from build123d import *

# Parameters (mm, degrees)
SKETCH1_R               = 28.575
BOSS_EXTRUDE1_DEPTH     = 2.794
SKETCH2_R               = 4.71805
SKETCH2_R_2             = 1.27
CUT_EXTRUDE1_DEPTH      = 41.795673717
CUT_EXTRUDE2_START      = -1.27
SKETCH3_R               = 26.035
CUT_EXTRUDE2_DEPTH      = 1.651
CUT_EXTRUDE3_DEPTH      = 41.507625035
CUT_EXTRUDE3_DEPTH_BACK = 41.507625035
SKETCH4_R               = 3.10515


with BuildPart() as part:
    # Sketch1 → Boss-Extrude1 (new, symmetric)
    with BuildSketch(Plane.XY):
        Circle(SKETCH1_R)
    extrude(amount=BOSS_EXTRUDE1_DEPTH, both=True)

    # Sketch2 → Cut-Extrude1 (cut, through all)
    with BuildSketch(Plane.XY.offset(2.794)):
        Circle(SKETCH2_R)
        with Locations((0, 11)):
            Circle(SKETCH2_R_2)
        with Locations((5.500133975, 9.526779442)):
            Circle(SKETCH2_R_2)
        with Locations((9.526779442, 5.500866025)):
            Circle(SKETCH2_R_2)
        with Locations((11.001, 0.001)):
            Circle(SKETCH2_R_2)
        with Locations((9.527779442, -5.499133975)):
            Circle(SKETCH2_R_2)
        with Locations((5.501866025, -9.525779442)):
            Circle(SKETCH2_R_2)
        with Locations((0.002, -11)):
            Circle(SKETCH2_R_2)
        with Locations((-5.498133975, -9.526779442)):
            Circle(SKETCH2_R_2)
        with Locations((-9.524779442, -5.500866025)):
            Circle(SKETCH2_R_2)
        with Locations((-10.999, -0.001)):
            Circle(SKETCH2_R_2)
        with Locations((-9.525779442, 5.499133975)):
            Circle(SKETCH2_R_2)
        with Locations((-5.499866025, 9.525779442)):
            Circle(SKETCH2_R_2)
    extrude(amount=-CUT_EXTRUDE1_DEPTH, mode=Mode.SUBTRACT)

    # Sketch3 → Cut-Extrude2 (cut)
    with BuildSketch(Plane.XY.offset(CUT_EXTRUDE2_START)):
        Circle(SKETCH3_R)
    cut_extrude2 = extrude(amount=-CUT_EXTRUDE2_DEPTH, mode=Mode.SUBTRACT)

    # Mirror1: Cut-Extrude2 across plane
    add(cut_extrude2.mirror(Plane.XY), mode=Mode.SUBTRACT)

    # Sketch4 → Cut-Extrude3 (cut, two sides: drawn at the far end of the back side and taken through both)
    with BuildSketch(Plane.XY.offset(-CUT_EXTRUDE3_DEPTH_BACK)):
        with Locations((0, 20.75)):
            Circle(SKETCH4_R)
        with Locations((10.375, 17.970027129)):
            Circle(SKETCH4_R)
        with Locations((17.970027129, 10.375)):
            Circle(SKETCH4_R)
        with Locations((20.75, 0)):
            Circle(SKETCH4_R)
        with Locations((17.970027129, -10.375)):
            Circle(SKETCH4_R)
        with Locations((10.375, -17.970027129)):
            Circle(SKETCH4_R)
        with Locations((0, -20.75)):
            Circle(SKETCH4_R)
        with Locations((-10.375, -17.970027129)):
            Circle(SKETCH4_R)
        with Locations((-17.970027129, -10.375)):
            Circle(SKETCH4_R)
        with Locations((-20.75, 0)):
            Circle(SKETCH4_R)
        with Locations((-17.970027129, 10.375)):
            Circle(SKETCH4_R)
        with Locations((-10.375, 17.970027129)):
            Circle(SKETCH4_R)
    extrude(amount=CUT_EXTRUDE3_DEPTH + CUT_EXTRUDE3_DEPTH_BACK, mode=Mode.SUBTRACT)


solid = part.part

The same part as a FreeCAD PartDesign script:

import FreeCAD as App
import Part
import Sketcher

V = App.Vector
Q = App.Units.Quantity

doc = App.newDocument("Part")
body = doc.addObject("PartDesign::Body", "Body")

# Sketch on XY plane
sketch1 = doc.addObject("Sketcher::SketchObject", "Sketch")
body.addObject(sketch1)
sketch1.AttachmentSupport = (doc.XY_Plane, [""])
sketch1.MapMode = "FlatFace"
sketch1.addGeometry(Part.Circle(V(0, 0, 0), V(0, 0, 1), 29), False)
sketch1.addConstraint(Sketcher.Constraint("Coincident", 0, 3, -1, 1))
sketch1.addConstraint(Sketcher.Constraint("Diameter", 0, Q("2.25 in")))
pad1 = doc.addObject("PartDesign::Pad", "Pad")
body.addObject(pad1)
pad1.Profile = sketch1
pad1.Length = Q("0.22 in")
pad1.Midplane = True

# Sketch on XY plane
sketch2 = doc.addObject("Sketcher::SketchObject", "Sketch001")
body.addObject(sketch2)
sketch2.AttachmentSupport = (doc.XY_Plane, [""])
sketch2.MapMode = "FlatFace"
sketch2.AttachmentOffset = App.Placement(V(0, 0, 0.11 * 25.4), App.Rotation())
sketch2.addGeometry(Part.Circle(V(0, 0, 0), V(0, 0, 1), 4.7), False)
sketch2.addGeometry(Part.Circle(V(0, 11, 0), V(0, 0, 1), 1.3), False)
sketch2.addGeometry(Part.Circle(V(5.5, 9.5, 0), V(0, 0, 1), 1.3), False)
sketch2.addGeometry(Part.Circle(V(9.5, 5.5, 0), V(0, 0, 1), 1.3), False)
sketch2.addGeometry(Part.Circle(V(11, 0, 0), V(0, 0, 1), 1.3), False)
sketch2.addGeometry(Part.Circle(V(9.5, -5.5, 0), V(0, 0, 1), 1.3), False)
sketch2.addGeometry(Part.Circle(V(5.5, -9.5, 0), V(0, 0, 1), 1.3), False)
sketch2.addGeometry(Part.Circle(V(0, -11, 0), V(0, 0, 1), 1.3), False)
sketch2.addGeometry(Part.Circle(V(-5.5, -9.5, 0), V(0, 0, 1), 1.3), False)
sketch2.addGeometry(Part.Circle(V(-9.5, -5.5, 0), V(0, 0, 1), 1.3), False)
sketch2.addGeometry(Part.Circle(V(-11, 0, 0), V(0, 0, 1), 1.3), False)
sketch2.addGeometry(Part.Circle(V(-9.5, 5.5, 0), V(0, 0, 1), 1.3), False)
sketch2.addGeometry(Part.Circle(V(-5.5, 9.5, 0), V(0, 0, 1), 1.3), False)
sketch2.addConstraint(Sketcher.Constraint("Coincident", 0, 3, -1, 1))
sketch2.addConstraint(Sketcher.Constraint("Equal", 1, 2))
sketch2.addConstraint(Sketcher.Constraint("Equal", 2, 3))
sketch2.addConstraint(Sketcher.Constraint("Equal", 3, 4))
sketch2.addConstraint(Sketcher.Constraint("Equal", 4, 5))
sketch2.addConstraint(Sketcher.Constraint("Equal", 5, 6))
sketch2.addConstraint(Sketcher.Constraint("Equal", 6, 7))
sketch2.addConstraint(Sketcher.Constraint("Equal", 7, 8))
sketch2.addConstraint(Sketcher.Constraint("Equal", 8, 9))
sketch2.addConstraint(Sketcher.Constraint("Equal", 9, 10))
sketch2.addConstraint(Sketcher.Constraint("Equal", 10, 11))
sketch2.addConstraint(Sketcher.Constraint("Equal", 11, 12))
sketch2.addConstraint(Sketcher.Constraint("PointOnObject", 1, 3, -2))
sketch2.addConstraint(Sketcher.Constraint("Diameter", 1, Q("0.1 in")))
sketch2.addConstraint(Sketcher.Constraint("Diameter", 0, Q("0.3715 in")))
sketch2.addConstraint(Sketcher.Constraint("DistanceY", -1, 1, 1, 3, 11.0))
sketch2.addConstraint(Sketcher.Constraint("DistanceX", -1, 1, 4, 3, 11.001))
sketch2.addConstraint(Sketcher.Constraint("DistanceY", -1, 1, 4, 3, 0.001))
sketch2.addConstraint(Sketcher.Constraint("DistanceX", -1, 1, 7, 3, 0.002))
sketch2.addConstraint(Sketcher.Constraint("DistanceY", 7, 3, -1, 1, 11.0))
sketch2.addConstraint(Sketcher.Constraint("DistanceX", 10, 3, -1, 1, 10.999))
sketch2.addConstraint(Sketcher.Constraint("DistanceY", 10, 3, -1, 1, 0.001))
sketch2.addConstraint(Sketcher.Constraint("DistanceX", 3, 3, 5, 3, 0.001))
sketch2.addConstraint(Sketcher.Constraint("DistanceY", 5, 3, 3, 3, 11.0))
sketch2.addConstraint(Sketcher.Constraint("DistanceX", 8, 3, 6, 3, 11.0))
sketch2.addConstraint(Sketcher.Constraint("DistanceY", 8, 3, 6, 3, 0.001))
sketch2.addConstraint(Sketcher.Constraint("DistanceX", 11, 3, 9, 3, 0.001))
sketch2.addConstraint(Sketcher.Constraint("DistanceY", 9, 3, 11, 3, 11.0))
sketch2.addConstraint(Sketcher.Constraint("DistanceX", 12, 3, 2, 3, 11.0))
sketch2.addConstraint(Sketcher.Constraint("DistanceY", 12, 3, 2, 3, 0.001))
sketch2.addConstraint(Sketcher.Constraint("DistanceY", -1, 1, 2, 3, 9.526779))
sketch2.addConstraint(Sketcher.Constraint("DistanceX", -1, 1, 3, 3, 9.526779))
sketch2.addConstraint(Sketcher.Constraint("DistanceY", 6, 3, -1, 1, 9.525779))
sketch2.addConstraint(Sketcher.Constraint("DistanceX", 9, 3, -1, 1, 9.524779))
sketch2.addConstraint(Sketcher.Constraint("DistanceX", -1, 1, 2, 3, 5.500134))
sketch2.addConstraint(Sketcher.Constraint("DistanceY", -1, 1, 3, 3, 5.500866))
sketch2.addConstraint(Sketcher.Constraint("DistanceX", -1, 1, 6, 3, 5.501866))
sketch2.addConstraint(Sketcher.Constraint("DistanceY", 9, 3, -1, 1, 5.500866))
pocket1 = doc.addObject("PartDesign::Pocket", "Pocket")
body.addObject(pocket1)
pocket1.Profile = sketch2
pocket1.Type = "ThroughAll"

# Sketch on XY plane
sketch3 = doc.addObject("Sketcher::SketchObject", "Sketch002")
body.addObject(sketch3)
sketch3.AttachmentSupport = (doc.XY_Plane, [""])
sketch3.MapMode = "FlatFace"
sketch3.AttachmentOffset = App.Placement(V(0, 0, -0.05 * 25.4), App.Rotation())
sketch3.addGeometry(Part.Circle(V(0, 0, 0), V(0, 0, 1), 26), False)
sketch3.addConstraint(Sketcher.Constraint("Coincident", 0, 3, -1, 1))
sketch3.addConstraint(Sketcher.Constraint("Diameter", 0, Q("2.05 in")))
pocket2 = doc.addObject("PartDesign::Pocket", "Pocket001")
body.addObject(pocket2)
pocket2.Profile = sketch3
pocket2.Length = Q("0.065 in")
doc.recompute()

mirrored = doc.addObject("PartDesign::Mirrored", "Mirrored")
body.addObject(mirrored)
mirrored.Originals = [pocket2]
mirrored.MirrorPlane = (doc.XY_Plane, [""])
body.Tip = mirrored

# Sketch on XY plane
sketch4 = doc.addObject("Sketcher::SketchObject", "Sketch003")
body.addObject(sketch4)
sketch4.AttachmentSupport = (doc.XY_Plane, [""])
sketch4.MapMode = "FlatFace"
sketch4.addGeometry(Part.Circle(V(0, 20.8, 0), V(0, 0, 1), 3.1), False)
sketch4.addGeometry(Part.Circle(V(10.4, 18, 0), V(0, 0, 1), 3.1), False)
sketch4.addGeometry(Part.Circle(V(18, 10.4, 0), V(0, 0, 1), 3.1), False)
sketch4.addGeometry(Part.Circle(V(20.8, 0, 0), V(0, 0, 1), 3.1), False)
sketch4.addGeometry(Part.Circle(V(18, -10.4, 0), V(0, 0, 1), 3.1), False)
sketch4.addGeometry(Part.Circle(V(10.4, -18, 0), V(0, 0, 1), 3.1), False)
sketch4.addGeometry(Part.Circle(V(0, -20.8, 0), V(0, 0, 1), 3.1), False)
sketch4.addGeometry(Part.Circle(V(-10.4, -18, 0), V(0, 0, 1), 3.1), False)
sketch4.addGeometry(Part.Circle(V(-18, -10.4, 0), V(0, 0, 1), 3.1), False)
sketch4.addGeometry(Part.Circle(V(-20.8, 0, 0), V(0, 0, 1), 3.1), False)
sketch4.addGeometry(Part.Circle(V(-18, 10.4, 0), V(0, 0, 1), 3.1), False)
sketch4.addGeometry(Part.Circle(V(-10.4, 18, 0), V(0, 0, 1), 3.1), False)
sketch4.addConstraint(Sketcher.Constraint("Equal", 0, 1))
sketch4.addConstraint(Sketcher.Constraint("Equal", 1, 2))
sketch4.addConstraint(Sketcher.Constraint("Equal", 2, 3))
sketch4.addConstraint(Sketcher.Constraint("Equal", 3, 4))
sketch4.addConstraint(Sketcher.Constraint("Equal", 4, 5))
sketch4.addConstraint(Sketcher.Constraint("Equal", 5, 6))
sketch4.addConstraint(Sketcher.Constraint("Equal", 6, 7))
sketch4.addConstraint(Sketcher.Constraint("Equal", 7, 8))
sketch4.addConstraint(Sketcher.Constraint("Equal", 8, 9))
sketch4.addConstraint(Sketcher.Constraint("Equal", 9, 10))
sketch4.addConstraint(Sketcher.Constraint("Equal", 10, 11))
sketch4.addConstraint(Sketcher.Constraint("Symmetric", 0, 3, 6, 3, -1, 1))
sketch4.addConstraint(Sketcher.Constraint("Symmetric", 1, 3, 7, 3, -1, 1))
sketch4.addConstraint(Sketcher.Constraint("Symmetric", 2, 3, 8, 3, -1, 1))
sketch4.addConstraint(Sketcher.Constraint("Symmetric", 3, 3, 9, 3, -1, 1))
sketch4.addConstraint(Sketcher.Constraint("Symmetric", 4, 3, 10, 3, -1, 1))
sketch4.addConstraint(Sketcher.Constraint("Symmetric", 5, 3, 11, 3, -1, 1))
sketch4.addConstraint(Sketcher.Constraint("Symmetric", 5, 3, 7, 3, -2))
sketch4.addConstraint(Sketcher.Constraint("Symmetric", 4, 3, 8, 3, -2))
sketch4.addConstraint(Sketcher.Constraint("PointOnObject", 0, 3, -2))
sketch4.addConstraint(Sketcher.Constraint("PointOnObject", 3, 3, -1))
sketch4.addConstraint(Sketcher.Constraint("Diameter", 0, Q("0.2445 in")))
sketch4.addConstraint(Sketcher.Constraint("DistanceY", -1, 1, 0, 3, 20.75))
sketch4.addConstraint(Sketcher.Constraint("DistanceX", -1, 1, 1, 3, 10.375))
sketch4.addConstraint(Sketcher.Constraint("DistanceY", -1, 1, 2, 3, 10.375))
sketch4.addConstraint(Sketcher.Constraint("DistanceX", -1, 1, 3, 3, 20.75))
sketch4.addConstraint(Sketcher.Constraint("DistanceY", -1, 1, 1, 3, 17.970027))
sketch4.addConstraint(Sketcher.Constraint("DistanceX", -1, 1, 2, 3, 17.970027))
pocket3 = doc.addObject("PartDesign::Pocket", "Pocket002")
body.addObject(pocket3)
pocket3.Profile = sketch4
pocket3.Type = "ThroughAll"
pocket3.Midplane = True

doc.recompute()
